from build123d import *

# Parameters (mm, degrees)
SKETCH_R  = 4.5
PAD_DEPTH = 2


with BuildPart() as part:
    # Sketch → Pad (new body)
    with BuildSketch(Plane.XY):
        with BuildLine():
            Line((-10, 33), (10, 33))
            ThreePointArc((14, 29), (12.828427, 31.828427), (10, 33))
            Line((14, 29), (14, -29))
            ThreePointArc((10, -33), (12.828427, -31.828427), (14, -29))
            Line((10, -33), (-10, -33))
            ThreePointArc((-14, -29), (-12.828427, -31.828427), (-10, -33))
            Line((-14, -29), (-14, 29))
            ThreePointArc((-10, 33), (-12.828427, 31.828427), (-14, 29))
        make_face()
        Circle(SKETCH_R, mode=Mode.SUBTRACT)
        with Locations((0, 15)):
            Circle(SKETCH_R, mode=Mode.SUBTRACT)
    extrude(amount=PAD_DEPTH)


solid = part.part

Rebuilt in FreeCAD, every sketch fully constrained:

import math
import FreeCAD as App
import Part
import Sketcher
from FreeCAD import Vector
Q = App.Units.Quantity

doc = App.newDocument("Part")
body = doc.addObject("PartDesign::Body", "Body")

sketch1 = body.newObject("Sketcher::SketchObject", "Sketch")
sketch1.AttachmentSupport = (doc.getObject("XY_Plane"), [""])
sketch1.MapMode = "FlatFace"
sketch1.addGeometry(Part.LineSegment(Vector(10, 33, 0), Vector(-10, 33, 0)), False)
sketch1.addGeometry(Part.ArcOfCircle(Part.Circle(Vector(-10, 29, 0), Vector(0, 0, 1), 4), math.radians(90.000006), math.radians(179.999994)), False)
sketch1.addGeometry(Part.LineSegment(Vector(-14, 29, 0), Vector(-14, -29, 0)), False)
sketch1.addGeometry(Part.ArcOfCircle(Part.Circle(Vector(-10, -29, 0), Vector(0, 0, 1), 4), math.radians(-179.999994), math.radians(-90.000006)), False)
sketch1.addGeometry(Part.LineSegment(Vector(-10, -33, 0), Vector(10, -33, 0)), False)
sketch1.addGeometry(Part.ArcOfCircle(Part.Circle(Vector(10, -29, 0), Vector(0, 0, 1), 4), math.radians(-89.999994), math.radians(-0.000006)), False)
sketch1.addGeometry(Part.LineSegment(Vector(14, -29, 0), Vector(14, 29, 0)), False)
sketch1.addGeometry(Part.ArcOfCircle(Part.Circle(Vector(10, 29, 0), Vector(0, 0, 1), 4), math.radians(0.000006), math.radians(89.999994)), False)
sketch1.addGeometry(Part.Circle(Vector(0, 0, 0), Vector(0, 0, 1), 4.5), False)
sketch1.addGeometry(Part.Circle(Vector(0, 15, 0), Vector(0, 0, 1), 4.5), False)
sketch1.addConstraint(Sketcher.Constraint("Tangent", 0, 2, 1, 1))
sketch1.addConstraint(Sketcher.Constraint("Tangent", 1, 2, 2, 1))
sketch1.addConstraint(Sketcher.Constraint("Tangent", 2, 2, 3, 1))
sketch1.addConstraint(Sketcher.Constraint("Tangent", 3, 2, 4, 1))
sketch1.addConstraint(Sketcher.Constraint("Tangent", 4, 2, 5, 1))
sketch1.addConstraint(Sketcher.Constraint("Tangent", 5, 2, 6, 1))
sketch1.addConstraint(Sketcher.Constraint("Tangent", 6, 2, 7, 1))
sketch1.addConstraint(Sketcher.Constraint("Tangent", 7, 2, 0, 1))
sketch1.addConstraint(Sketcher.Constraint("Horizontal", 0))
sketch1.addConstraint(Sketcher.Constraint("Vertical", 2))
sketch1.addConstraint(Sketcher.Constraint("Horizontal", 4))
sketch1.addConstraint(Sketcher.Constraint("Vertical", 6))
sketch1.addConstraint(Sketcher.Constraint("Coincident", 8, 3, -1, 1))
sketch1.addConstraint(Sketcher.Constraint("Equal", 1, 3))
sketch1.addConstraint(Sketcher.Constraint("Equal", 3, 5))
sketch1.addConstraint(Sketcher.Constraint("Equal", 5, 7))
sketch1.addConstraint(Sketcher.Constraint("Equal", 8, 9))
sketch1.addConstraint(Sketcher.Constraint("Symmetric", 1, 3, 5, 3, -1, 1))
sketch1.addConstraint(Sketcher.Constraint("PointOnObject", 9, 3, -2))
sketch1.addConstraint(Sketcher.Constraint("Diameter", 8, Q("9 mm")))
sketch1.addConstraint(Sketcher.Constraint("Radius", 1, Q("4 mm")))
sketch1.addConstraint(Sketcher.Constraint("DistanceX", 0, 2, 0, 1, Q("20 mm")))
sketch1.addConstraint(Sketcher.Constraint("DistanceY", 2, 2, 2, 1, Q("58 mm")))
sketch1.addConstraint(Sketcher.Constraint("DistanceY", -1, 1, 9, 3, Q("15 mm")))
pad1 = body.newObject("PartDesign::Pad", "Pad")
pad1.Profile = sketch1
pad1.Length = 2

doc.recompute()
